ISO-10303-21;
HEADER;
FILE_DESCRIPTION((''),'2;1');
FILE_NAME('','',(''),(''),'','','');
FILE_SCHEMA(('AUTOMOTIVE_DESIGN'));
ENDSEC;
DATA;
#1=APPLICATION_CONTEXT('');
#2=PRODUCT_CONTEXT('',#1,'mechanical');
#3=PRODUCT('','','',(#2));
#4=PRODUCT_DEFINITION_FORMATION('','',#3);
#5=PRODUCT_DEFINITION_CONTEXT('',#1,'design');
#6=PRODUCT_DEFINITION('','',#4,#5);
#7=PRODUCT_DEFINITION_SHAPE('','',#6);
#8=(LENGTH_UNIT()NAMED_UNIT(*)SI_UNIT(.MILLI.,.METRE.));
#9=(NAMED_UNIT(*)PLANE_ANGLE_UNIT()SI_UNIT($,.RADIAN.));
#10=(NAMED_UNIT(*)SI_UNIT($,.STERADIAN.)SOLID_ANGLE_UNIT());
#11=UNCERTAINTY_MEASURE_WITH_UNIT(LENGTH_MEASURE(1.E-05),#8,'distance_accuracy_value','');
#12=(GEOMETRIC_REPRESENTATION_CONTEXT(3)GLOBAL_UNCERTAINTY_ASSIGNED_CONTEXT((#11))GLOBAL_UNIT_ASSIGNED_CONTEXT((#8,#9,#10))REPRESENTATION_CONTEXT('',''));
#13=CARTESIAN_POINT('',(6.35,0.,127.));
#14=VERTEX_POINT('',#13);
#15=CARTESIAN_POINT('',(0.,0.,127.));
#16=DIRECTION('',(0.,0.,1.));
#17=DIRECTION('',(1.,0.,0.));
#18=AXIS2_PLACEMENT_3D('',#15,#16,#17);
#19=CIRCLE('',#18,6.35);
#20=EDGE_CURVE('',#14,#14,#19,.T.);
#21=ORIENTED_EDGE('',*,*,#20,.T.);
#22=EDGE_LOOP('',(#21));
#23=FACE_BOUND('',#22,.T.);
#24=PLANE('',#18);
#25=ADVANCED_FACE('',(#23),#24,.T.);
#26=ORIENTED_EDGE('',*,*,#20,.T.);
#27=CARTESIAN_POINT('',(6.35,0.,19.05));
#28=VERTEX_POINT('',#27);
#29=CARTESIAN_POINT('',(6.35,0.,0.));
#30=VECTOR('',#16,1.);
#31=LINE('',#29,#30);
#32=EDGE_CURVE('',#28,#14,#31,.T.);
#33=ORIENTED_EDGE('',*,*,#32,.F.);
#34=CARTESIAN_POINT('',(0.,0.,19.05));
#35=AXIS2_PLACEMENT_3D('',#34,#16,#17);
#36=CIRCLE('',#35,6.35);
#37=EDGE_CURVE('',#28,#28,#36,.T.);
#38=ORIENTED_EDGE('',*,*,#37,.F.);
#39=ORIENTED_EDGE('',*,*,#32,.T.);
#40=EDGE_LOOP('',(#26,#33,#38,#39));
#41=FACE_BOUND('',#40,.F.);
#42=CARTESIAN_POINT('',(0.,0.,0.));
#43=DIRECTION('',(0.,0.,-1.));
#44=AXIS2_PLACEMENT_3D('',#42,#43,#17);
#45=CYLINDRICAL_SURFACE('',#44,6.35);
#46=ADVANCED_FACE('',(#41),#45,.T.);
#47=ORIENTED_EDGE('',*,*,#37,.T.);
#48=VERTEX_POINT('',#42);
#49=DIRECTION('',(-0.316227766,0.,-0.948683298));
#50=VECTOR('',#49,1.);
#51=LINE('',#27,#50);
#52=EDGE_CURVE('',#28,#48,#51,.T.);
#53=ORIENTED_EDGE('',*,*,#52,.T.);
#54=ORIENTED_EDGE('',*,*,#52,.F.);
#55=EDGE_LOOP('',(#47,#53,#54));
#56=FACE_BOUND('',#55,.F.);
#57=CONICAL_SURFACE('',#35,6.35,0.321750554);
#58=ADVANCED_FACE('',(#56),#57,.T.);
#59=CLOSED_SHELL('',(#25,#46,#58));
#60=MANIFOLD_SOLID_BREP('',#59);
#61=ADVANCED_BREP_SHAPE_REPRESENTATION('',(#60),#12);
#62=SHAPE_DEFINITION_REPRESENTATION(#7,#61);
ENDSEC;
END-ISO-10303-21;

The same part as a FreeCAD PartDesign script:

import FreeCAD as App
import Part
import Sketcher
Q = App.Units.Quantity


def edges_at(feature, points):
    """Names of the edges that pass closest to the given points."""
    edges = feature.Shape.Edges
    near = lambda p: min(range(len(edges)), key=lambda i: edges[i].distToShape(Part.Vertex(*p))[0])
    return sorted({f"Edge{near(p) + 1}" for p in points})

doc = App.newDocument("Part")
body = doc.addObject("PartDesign::Body", "Body")

sketch1 = body.newObject("Sketcher::SketchObject", "Sketch")
sketch1.AttachmentSupport = (doc.getObject("XY_Plane"), [""])
sketch1.MapMode = "FlatFace"
sketch1.addGeometry(Part.Circle(App.Vector(0, 0, 0), App.Vector(0, 0, 1), 6), False)
sketch1.addConstraint(Sketcher.Constraint("Coincident", 0, 3, -1, 1))
sketch1.addConstraint(Sketcher.Constraint("Diameter", 0, Q("0.5 in")))
pad1 = body.newObject("PartDesign::Pad", "Pad")
pad1.Profile = sketch1
pad1.Length = Q("5 in")
doc.recompute()

chamfer = body.newObject("PartDesign::Chamfer", "Chamfer")
chamfer.Base = (pad1, edges_at(pad1, [(-6.35, 0, 0)]))
chamfer.ChamferType = "Two distances"
chamfer.Size = Q("0.75 in")
chamfer.Size2 = Q("0.25 in")

doc.recompute()
